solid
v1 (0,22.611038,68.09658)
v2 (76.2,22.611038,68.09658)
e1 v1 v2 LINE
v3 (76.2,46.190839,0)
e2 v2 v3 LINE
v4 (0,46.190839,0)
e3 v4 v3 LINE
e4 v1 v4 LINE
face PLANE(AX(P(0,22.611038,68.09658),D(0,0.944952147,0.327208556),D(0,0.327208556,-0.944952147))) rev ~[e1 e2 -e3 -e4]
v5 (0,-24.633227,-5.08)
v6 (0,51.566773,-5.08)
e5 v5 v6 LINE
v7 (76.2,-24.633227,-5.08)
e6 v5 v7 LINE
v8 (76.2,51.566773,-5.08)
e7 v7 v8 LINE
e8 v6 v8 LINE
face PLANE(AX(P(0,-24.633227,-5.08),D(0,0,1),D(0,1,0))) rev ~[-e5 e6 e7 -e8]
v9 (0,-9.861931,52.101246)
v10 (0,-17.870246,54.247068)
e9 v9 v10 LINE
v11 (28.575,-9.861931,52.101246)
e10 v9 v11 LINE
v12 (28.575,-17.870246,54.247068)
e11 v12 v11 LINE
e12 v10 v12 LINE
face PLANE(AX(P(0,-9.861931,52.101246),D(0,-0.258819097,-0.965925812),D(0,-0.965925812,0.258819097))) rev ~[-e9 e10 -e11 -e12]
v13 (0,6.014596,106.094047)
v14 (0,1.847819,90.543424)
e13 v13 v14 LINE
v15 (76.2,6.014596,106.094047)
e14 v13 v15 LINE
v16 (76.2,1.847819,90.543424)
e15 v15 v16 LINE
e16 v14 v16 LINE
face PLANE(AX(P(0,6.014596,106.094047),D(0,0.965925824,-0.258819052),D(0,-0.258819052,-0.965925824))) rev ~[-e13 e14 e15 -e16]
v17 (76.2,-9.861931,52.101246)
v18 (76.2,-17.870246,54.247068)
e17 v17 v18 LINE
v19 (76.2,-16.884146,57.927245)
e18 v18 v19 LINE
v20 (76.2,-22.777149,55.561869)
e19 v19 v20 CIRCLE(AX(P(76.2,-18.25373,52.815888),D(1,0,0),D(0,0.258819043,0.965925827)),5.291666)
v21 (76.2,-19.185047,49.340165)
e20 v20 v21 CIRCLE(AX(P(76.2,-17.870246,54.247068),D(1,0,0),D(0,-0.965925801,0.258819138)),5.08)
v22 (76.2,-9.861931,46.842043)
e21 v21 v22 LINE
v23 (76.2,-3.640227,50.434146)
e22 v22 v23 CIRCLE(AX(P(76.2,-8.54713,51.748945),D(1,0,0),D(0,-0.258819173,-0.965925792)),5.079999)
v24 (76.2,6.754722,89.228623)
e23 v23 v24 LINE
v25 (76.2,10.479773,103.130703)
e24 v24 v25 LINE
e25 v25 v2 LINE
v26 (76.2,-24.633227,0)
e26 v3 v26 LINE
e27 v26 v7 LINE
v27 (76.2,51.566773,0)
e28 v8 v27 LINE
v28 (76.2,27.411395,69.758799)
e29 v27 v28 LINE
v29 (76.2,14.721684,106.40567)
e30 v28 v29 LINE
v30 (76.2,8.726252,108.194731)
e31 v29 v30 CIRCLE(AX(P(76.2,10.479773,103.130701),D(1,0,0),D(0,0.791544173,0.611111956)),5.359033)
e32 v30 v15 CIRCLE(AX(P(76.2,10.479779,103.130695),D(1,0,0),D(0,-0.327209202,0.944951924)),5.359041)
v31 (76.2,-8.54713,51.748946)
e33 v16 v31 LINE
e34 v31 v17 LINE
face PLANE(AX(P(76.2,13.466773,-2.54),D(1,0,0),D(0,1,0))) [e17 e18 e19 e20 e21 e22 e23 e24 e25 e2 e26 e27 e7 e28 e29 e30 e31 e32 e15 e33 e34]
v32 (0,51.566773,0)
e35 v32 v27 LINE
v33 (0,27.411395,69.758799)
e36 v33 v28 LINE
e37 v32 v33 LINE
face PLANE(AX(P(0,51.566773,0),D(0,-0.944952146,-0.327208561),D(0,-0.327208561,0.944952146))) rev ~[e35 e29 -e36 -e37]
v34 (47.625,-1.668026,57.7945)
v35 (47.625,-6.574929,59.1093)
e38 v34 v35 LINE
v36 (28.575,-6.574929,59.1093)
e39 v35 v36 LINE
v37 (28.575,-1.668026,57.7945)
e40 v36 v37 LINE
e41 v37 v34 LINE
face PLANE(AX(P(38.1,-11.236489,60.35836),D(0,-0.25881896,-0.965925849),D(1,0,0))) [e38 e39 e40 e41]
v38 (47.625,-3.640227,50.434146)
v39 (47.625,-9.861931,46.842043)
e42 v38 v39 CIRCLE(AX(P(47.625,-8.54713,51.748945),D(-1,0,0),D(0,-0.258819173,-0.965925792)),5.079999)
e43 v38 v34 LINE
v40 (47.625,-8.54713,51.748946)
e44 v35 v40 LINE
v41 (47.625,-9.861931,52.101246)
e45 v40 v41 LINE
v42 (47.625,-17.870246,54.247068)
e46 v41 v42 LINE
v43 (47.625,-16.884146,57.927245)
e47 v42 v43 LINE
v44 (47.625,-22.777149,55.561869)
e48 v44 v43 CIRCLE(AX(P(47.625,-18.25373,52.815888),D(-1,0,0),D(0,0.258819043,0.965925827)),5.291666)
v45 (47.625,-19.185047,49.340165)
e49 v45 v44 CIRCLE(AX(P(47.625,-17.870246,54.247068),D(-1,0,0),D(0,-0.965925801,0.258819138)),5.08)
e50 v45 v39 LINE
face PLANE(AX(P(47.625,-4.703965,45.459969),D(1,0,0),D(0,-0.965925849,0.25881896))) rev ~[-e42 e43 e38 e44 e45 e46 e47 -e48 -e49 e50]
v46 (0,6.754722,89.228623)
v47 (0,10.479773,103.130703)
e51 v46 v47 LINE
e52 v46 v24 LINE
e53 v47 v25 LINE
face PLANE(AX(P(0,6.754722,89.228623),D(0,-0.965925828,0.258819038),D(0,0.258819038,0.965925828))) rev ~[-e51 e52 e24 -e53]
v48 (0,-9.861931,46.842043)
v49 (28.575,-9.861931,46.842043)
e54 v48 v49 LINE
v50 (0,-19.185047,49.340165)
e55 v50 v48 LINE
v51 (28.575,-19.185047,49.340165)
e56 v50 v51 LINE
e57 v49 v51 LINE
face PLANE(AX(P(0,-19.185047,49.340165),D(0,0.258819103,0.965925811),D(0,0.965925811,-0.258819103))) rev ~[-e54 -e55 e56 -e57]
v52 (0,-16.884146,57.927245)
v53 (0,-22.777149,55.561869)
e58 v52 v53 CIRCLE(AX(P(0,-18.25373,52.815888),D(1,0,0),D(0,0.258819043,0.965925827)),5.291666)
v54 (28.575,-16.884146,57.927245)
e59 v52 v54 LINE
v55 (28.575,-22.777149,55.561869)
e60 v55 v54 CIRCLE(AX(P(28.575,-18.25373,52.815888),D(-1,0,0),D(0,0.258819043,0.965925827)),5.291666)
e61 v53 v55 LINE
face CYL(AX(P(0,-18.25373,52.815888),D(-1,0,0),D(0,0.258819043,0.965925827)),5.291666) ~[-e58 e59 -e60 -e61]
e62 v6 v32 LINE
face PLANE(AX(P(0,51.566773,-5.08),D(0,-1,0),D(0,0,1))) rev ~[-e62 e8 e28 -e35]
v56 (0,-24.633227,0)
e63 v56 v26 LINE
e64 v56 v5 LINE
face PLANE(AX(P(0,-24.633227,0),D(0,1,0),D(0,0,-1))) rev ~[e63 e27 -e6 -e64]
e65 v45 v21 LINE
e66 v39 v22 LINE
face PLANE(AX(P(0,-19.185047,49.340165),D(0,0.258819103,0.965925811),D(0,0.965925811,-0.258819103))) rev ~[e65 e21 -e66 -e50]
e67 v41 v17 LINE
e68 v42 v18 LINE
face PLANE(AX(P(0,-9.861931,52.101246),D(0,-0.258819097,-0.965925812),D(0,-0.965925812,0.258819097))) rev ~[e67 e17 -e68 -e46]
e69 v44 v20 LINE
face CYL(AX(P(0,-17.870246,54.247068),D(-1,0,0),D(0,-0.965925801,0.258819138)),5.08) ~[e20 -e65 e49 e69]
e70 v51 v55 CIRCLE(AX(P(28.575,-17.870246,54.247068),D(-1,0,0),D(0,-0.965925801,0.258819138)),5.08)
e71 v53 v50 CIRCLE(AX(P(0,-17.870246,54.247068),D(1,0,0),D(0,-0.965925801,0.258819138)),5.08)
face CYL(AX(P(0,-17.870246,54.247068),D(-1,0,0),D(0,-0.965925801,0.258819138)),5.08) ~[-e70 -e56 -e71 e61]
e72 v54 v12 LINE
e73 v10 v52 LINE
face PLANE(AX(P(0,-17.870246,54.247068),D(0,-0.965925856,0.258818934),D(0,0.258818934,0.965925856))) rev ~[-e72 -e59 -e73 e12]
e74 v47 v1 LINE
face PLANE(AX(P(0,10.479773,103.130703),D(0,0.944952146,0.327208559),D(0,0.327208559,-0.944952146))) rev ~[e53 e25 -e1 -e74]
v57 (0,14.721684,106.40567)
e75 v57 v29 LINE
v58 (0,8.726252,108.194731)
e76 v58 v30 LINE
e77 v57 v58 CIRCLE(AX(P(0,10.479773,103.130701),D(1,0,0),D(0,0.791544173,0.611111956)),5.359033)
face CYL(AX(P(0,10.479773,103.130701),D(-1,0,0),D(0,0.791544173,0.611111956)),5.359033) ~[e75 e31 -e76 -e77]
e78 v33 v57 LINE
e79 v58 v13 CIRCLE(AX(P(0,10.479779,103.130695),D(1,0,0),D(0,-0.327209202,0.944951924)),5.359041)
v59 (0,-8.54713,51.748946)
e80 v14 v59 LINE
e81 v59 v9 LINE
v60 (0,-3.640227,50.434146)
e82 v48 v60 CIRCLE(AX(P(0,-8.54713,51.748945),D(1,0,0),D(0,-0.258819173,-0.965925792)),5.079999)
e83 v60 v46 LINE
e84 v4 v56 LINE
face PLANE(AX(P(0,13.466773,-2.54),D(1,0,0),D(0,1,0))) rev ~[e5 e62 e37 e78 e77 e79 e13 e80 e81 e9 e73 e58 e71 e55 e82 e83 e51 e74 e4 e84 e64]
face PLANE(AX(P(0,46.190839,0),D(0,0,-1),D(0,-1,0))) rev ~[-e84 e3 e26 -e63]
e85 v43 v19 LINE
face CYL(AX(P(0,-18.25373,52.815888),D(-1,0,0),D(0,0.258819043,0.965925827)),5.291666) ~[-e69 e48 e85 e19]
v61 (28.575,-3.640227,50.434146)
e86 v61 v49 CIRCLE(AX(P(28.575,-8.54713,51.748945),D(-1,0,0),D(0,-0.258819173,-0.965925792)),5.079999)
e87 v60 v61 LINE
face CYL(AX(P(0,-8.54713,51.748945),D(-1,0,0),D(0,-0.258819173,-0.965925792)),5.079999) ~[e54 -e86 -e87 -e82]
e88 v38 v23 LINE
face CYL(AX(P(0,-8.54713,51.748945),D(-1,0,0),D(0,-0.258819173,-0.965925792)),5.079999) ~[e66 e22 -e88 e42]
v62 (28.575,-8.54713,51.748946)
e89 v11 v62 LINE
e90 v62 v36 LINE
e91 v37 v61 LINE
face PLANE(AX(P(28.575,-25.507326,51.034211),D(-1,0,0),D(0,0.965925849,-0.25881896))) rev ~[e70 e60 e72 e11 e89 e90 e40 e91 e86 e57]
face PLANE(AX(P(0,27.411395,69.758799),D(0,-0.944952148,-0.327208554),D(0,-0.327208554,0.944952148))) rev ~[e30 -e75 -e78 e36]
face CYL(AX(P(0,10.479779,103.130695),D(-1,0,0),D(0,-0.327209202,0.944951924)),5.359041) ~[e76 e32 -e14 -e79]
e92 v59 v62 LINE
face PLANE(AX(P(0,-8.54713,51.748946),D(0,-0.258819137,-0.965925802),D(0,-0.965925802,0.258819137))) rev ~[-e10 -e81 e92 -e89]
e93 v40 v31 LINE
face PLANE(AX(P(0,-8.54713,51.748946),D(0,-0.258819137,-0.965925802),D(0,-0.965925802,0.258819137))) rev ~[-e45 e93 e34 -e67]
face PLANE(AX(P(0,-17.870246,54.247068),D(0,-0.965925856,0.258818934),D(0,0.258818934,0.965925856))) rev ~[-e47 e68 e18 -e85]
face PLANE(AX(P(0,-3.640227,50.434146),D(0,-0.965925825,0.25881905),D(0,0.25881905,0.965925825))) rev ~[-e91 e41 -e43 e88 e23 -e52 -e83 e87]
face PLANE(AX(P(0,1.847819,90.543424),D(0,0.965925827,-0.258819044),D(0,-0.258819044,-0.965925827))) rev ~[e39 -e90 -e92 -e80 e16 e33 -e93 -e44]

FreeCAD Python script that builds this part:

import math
import FreeCAD as App
import Part
import Sketcher
Q = App.Units.Quantity


def add_polygon(sketch, points):
    """Adds a closed chain of lines whose ends are joined by coincident constraints."""
    first, n = sketch.GeometryCount, len(points)
    for a, b in zip(points, points[1:] + points[:1]):
        sketch.addGeometry(Part.LineSegment(App.Vector(*a, 0), App.Vector(*b, 0)), False)
    for i in range(n):
        sketch.addConstraint(Sketcher.Constraint("Coincident", first + i, 2, first + (i + 1) % n, 1))

doc = App.newDocument("Part")
body = doc.addObject("PartDesign::Body", "Body")

# Sketch on YZ plane
sketch1 = body.newObject("Sketcher::SketchObject", "Sketch")
sketch1.AttachmentSupport = (doc.getObject("YZ_Plane"), [""])
sketch1.MapMode = "FlatFace"
sketch1.addGeometry(Part.LineSegment(App.Vector(-24.633227, 0, 0), App.Vector(-24.633227, -5.08, 0)), False)
sketch1.addGeometry(Part.LineSegment(App.Vector(-24.633227, -5.08, 0), App.Vector(51.566773, -5.08, 0)), False)
sketch1.addGeometry(Part.LineSegment(App.Vector(51.566773, -5.08, 0), App.Vector(51.566773, 0, 0)), False)
sketch1.addGeometry(Part.LineSegment(App.Vector(51.566773, 0, 0), App.Vector(27.411395, 69.758799, 0)), False)
sketch1.addGeometry(Part.LineSegment(App.Vector(27.411395, 69.758799, 0), App.Vector(14.721684, 106.40567, 0)), False)
sketch1.addGeometry(Part.ArcOfCircle(Part.Circle(App.Vector(10.479773, 103.130701, 0), App.Vector(0, 0, 1), 5.359033), math.radians(37.669948), math.radians(109.099422)), False)
sketch1.addGeometry(Part.ArcOfCircle(Part.Circle(App.Vector(10.479779, 103.130695, 0), App.Vector(0, 0, 1), 5.359041), math.radians(109.099473), math.radians(146.429467)), False)
sketch1.addGeometry(Part.LineSegment(App.Vector(6.014596, 106.094047, 0), App.Vector(1.847819, 90.543424, 0)), False)
sketch1.addGeometry(Part.LineSegment(App.Vector(1.847819, 90.543424, 0), App.Vector(-8.54713, 51.748946, 0)), False)
sketch1.addGeometry(Part.LineSegment(App.Vector(-8.54713, 51.748946, 0), App.Vector(-9.861931, 52.101246, 0)), False)
sketch1.addGeometry(Part.LineSegment(App.Vector(-9.861931, 52.101246, 0), App.Vector(-17.870246, 54.247068, 0)), False)
sketch1.addGeometry(Part.LineSegment(App.Vector(-17.870246, 54.247068, 0), App.Vector(-16.884146, 57.927245, 0)), False)
sketch1.addGeometry(Part.ArcOfCircle(Part.Circle(App.Vector(-18.25373, 52.815888, 0), App.Vector(0, 0, 1), 5.291666), math.radians(75), math.radians(148.739789)), False)
sketch1.addGeometry(Part.ArcOfCircle(Part.Circle(App.Vector(-17.870246, 54.247068, 0), App.Vector(0, 0, 1), 5.08), math.radians(164.999994), math.radians(254.999999)), False)
sketch1.addGeometry(Part.LineSegment(App.Vector(-19.185047, 49.340165, 0), App.Vector(-9.861931, 46.842043, 0)), False)
sketch1.addGeometry(Part.ArcOfCircle(Part.Circle(App.Vector(-8.54713, 51.748945, 0), App.Vector(0, 0, 1), 5.079999), math.radians(-105.000008), math.radians(-14.999985)), False)
sketch1.addGeometry(Part.LineSegment(App.Vector(-3.640227, 50.434146, 0), App.Vector(6.754722, 89.228623, 0)), False)
sketch1.addGeometry(Part.LineSegment(App.Vector(6.754722, 89.228623, 0), App.Vector(10.479773, 103.130703, 0)), False)
sketch1.addGeometry(Part.LineSegment(App.Vector(10.479773, 103.130703, 0), App.Vector(22.611038, 68.09658, 0)), False)
sketch1.addGeometry(Part.LineSegment(App.Vector(22.611038, 68.09658, 0), App.Vector(46.190839, 0, 0)), False)
sketch1.addGeometry(Part.LineSegment(App.Vector(46.190839, 0, 0), App.Vector(-24.633227, 0, 0)), False)
sketch1.addConstraint(Sketcher.Constraint("Coincident", 0, 2, 1, 1))
sketch1.addConstraint(Sketcher.Constraint("Coincident", 1, 2, 2, 1))
sketch1.addConstraint(Sketcher.Constraint("Coincident", 2, 2, 3, 1))
sketch1.addConstraint(Sketcher.Constraint("Coincident", 3, 2, 4, 1))
sketch1.addConstraint(Sketcher.Constraint("Coincident", 4, 2, 5, 1))
sketch1.addConstraint(Sketcher.Constraint("Tangent", 5, 2, 6, 1))
sketch1.addConstraint(Sketcher.Constraint("Coincident", 6, 2, 7, 1))
sketch1.addConstraint(Sketcher.Constraint("Coincident", 7, 2, 8, 1))
sketch1.addConstraint(Sketcher.Constraint("Coincident", 8, 2, 9, 1))
sketch1.addConstraint(Sketcher.Constraint("Coincident", 9, 2, 10, 1))
sketch1.addConstraint(Sketcher.Constraint("Coincident", 10, 2, 11, 1))
sketch1.addConstraint(Sketcher.Constraint("Coincident", 11, 2, 12, 1))
sketch1.addConstraint(Sketcher.Constraint("Coincident", 12, 2, 13, 1))
sketch1.addConstraint(Sketcher.Constraint("Tangent", 13, 2, 14, 1))
sketch1.addConstraint(Sketcher.Constraint("Tangent", 14, 2, 15, 1))
sketch1.addConstraint(Sketcher.Constraint("Tangent", 15, 2, 16, 1))
sketch1.addConstraint(Sketcher.Constraint("Coincident", 16, 2, 17, 1))
sketch1.addConstraint(Sketcher.Constraint("Coincident", 17, 2, 18, 1))
sketch1.addConstraint(Sketcher.Constraint("Coincident", 18, 2, 19, 1))
sketch1.addConstraint(Sketcher.Constraint("Coincident", 19, 2, 20, 1))
sketch1.addConstraint(Sketcher.Constraint("Coincident", 20, 2, 0, 1))
sketch1.addConstraint(Sketcher.Constraint("Vertical", 0))
sketch1.addConstraint(Sketcher.Constraint("Horizontal", 1))
sketch1.addConstraint(Sketcher.Constraint("Vertical", 2))
sketch1.addConstraint(Sketcher.Constraint("Horizontal", 20))
sketch1.addConstraint(Sketcher.Constraint("Coincident", 8, 2, 15, 3))
sketch1.addConstraint(Sketcher.Constraint("Coincident", 10, 2, 13, 3))
sketch1.addConstraint(Sketcher.Constraint("Coincident", 17, 2, 5, 3))
sketch1.addConstraint(Sketcher.Constraint("Equal", 13, 15))
sketch1.addConstraint(Sketcher.Constraint("PointOnObject", 2, 2, -1))
sketch1.addConstraint(Sketcher.Constraint("PointOnObject", 19, 2, -1))
sketch1.addConstraint(Sketcher.Constraint("Parallel", 3, 4))
sketch1.addConstraint(Sketcher.Constraint("Parallel", 7, 8))
sketch1.addConstraint(Sketcher.Constraint("Perpendicular", 8, 9))
sketch1.addConstraint(Sketcher.Constraint("Parallel", 9, 10))
sketch1.addConstraint(Sketcher.Constraint("Perpendicular", 10, 11))
sketch1.addConstraint(Sketcher.Constraint("Perpendicular", 14, 16))
sketch1.addConstraint(Sketcher.Constraint("Parallel", 16, 17))
sketch1.addConstraint(Sketcher.Constraint("Parallel", 4, 18))
sketch1.addConstraint(Sketcher.Constraint("Parallel", 18, 19))
sketch1.addConstraint(Sketcher.Constraint("Vertical", 9, 2, 14, 2))
sketch1.addConstraint(Sketcher.Constraint("Equal", 8, 16))
sketch1.addConstraint(Sketcher.Constraint("Radius", 13, Q("0.2 in")))
sketch1.addConstraint(Sketcher.Constraint("DistanceX", 1, 1, 1, 2, Q("3 in")))
sketch1.addConstraint(Sketcher.Constraint("DistanceY", 0, 2, 0, 1, Q("0.2 in")))
sketch1.addConstraint(Sketcher.Constraint("Angle", 7, Q("-105 deg")))
sketch1.addConstraint(Sketcher.Constraint("Distance", 11, Q("0.15 in")))
sketch1.addConstraint(Sketcher.Constraint("Distance", 14, Q("0.38 in")))
sketch1.addConstraint(Sketcher.Constraint("Radius", 6, 5.359041))
sketch1.addConstraint(Sketcher.Constraint("DistanceY", -1, 1, 11, 2, Q("2.2806002 in")))
sketch1.addConstraint(Sketcher.Constraint("Radius", 5, 5.359033))
sketch1.addConstraint(Sketcher.Constraint("Radius", 12, 5.291666))
sketch1.addConstraint(Sketcher.Constraint("Distance", 8, 40.162999))
sketch1.addConstraint(Sketcher.Constraint("DistanceY", -1, 1, 5, 3, 103.130701))
sketch1.addConstraint(Sketcher.Constraint("DistanceY", -1, 1, 3, 2, 69.758799))
sketch1.addConstraint(Sketcher.Constraint("DistanceX", 12, 3, 15, 3, 9.7066))
sketch1.addConstraint(Sketcher.Constraint("DistanceX", 0, 2, 5, 3, 35.113))
sketch1.addConstraint(Sketcher.Constraint("DistanceX", 6, 2, 3, 2, 21.396799))
sketch1.addConstraint(Sketcher.Constraint("DistanceX", 18, 2, 19, 2, 23.579801))
sketch1.addConstraint(Sketcher.Constraint("DistanceX", -1, 1, 6, 3, 10.479779))
sketch1.addConstraint(Sketcher.Constraint("DistanceY", -1, 1, 5, 2, 108.194731))
pad1 = body.newObject("PartDesign::Pad", "Pad")
pad1.Profile = sketch1
pad1.Length = Q("3 in")

# Sketch on an angled plane
sketch2 = body.newObject("Sketcher::SketchObject", "Sketch001")
sketch2.Placement = App.Placement(App.Vector(0, 11.049887, 41.238739), App.Rotation(App.Vector(1, 0, 0), App.Vector(0, -0.965925849, 0.25881896), App.Vector(0, -0.25881896, -0.965925849), "ZXY"))
add_polygon(sketch2, [(47.625, 37.846811), (28.575, 37.846811), (28.575, 16.309587), (47.625, 16.309587)])  # lines 0-3
sketch2.addConstraint(Sketcher.Constraint("Horizontal", 0))
sketch2.addConstraint(Sketcher.Constraint("Vertical", 1))
sketch2.addConstraint(Sketcher.Constraint("Horizontal", 2))
sketch2.addConstraint(Sketcher.Constraint("Vertical", 3))
sketch2.addConstraint(Sketcher.Constraint("DistanceX", 0, 2, 0, 1, Q("0.75 in")))
sketch2.addConstraint(Sketcher.Constraint("DistanceX", -1, 1, 0, 2, Q("1.125 in")))
sketch2.addConstraint(Sketcher.Constraint("DistanceY", 1, 2, 1, 1, 21.537224))
sketch2.addConstraint(Sketcher.Constraint("DistanceY", -1, 1, 0, 2, 37.846811))
pocket1 = body.newObject("PartDesign::Pocket", "Pocket")
pocket1.Profile = sketch2
pocket1.Length = Q("0.5 in")

doc.recompute()
